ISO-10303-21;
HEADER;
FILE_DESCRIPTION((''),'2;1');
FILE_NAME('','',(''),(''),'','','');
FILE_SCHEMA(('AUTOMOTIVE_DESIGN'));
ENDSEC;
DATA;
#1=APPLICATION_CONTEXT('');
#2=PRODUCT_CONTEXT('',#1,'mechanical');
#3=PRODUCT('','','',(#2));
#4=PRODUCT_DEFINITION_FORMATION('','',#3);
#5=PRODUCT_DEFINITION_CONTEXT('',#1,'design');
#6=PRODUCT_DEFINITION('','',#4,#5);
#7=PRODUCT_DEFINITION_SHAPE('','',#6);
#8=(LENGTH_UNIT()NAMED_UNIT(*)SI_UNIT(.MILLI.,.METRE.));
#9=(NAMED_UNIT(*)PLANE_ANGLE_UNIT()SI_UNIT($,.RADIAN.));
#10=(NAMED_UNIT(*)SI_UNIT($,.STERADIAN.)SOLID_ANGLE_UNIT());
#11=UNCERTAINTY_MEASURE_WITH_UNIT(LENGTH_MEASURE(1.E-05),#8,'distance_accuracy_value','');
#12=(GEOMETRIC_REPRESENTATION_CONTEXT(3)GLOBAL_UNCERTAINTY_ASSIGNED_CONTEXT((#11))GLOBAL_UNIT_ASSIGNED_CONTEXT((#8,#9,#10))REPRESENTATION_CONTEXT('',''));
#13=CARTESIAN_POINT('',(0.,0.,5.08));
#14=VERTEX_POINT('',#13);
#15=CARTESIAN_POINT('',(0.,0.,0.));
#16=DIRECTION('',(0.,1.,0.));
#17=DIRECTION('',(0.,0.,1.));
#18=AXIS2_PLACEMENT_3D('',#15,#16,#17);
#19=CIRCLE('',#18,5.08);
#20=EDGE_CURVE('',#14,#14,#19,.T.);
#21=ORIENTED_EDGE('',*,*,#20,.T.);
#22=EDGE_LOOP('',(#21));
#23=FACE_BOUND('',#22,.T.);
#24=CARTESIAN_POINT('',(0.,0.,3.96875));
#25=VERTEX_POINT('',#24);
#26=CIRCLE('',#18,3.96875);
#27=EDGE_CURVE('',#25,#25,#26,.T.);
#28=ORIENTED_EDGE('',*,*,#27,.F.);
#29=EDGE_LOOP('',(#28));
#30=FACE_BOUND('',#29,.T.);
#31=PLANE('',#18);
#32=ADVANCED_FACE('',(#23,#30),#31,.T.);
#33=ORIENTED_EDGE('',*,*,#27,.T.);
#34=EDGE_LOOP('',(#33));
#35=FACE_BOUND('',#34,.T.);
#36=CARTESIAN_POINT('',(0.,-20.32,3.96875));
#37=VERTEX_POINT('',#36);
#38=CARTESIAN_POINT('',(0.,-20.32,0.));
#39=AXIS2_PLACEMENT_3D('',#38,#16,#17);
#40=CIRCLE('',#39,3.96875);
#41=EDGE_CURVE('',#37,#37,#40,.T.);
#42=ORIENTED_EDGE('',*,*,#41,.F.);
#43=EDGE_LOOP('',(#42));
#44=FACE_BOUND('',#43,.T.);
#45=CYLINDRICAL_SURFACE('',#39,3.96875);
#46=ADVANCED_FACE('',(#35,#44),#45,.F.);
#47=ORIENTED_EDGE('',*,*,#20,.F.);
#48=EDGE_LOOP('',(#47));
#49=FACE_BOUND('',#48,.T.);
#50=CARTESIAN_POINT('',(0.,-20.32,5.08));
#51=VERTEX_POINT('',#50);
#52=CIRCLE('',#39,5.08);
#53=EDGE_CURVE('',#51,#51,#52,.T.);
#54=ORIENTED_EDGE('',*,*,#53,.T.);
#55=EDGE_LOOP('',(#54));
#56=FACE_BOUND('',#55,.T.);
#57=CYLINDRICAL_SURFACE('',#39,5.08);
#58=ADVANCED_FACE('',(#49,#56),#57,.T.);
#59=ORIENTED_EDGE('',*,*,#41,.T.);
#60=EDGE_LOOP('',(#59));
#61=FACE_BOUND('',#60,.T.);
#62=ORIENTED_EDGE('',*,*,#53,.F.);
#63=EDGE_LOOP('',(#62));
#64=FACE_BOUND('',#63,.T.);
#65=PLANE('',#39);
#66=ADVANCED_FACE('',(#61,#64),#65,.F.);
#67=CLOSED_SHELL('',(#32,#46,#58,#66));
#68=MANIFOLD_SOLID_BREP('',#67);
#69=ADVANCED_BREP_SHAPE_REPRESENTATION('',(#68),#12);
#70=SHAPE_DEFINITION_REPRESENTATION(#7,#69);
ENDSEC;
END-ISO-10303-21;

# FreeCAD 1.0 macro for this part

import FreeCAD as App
import Part
import Sketcher

V = App.Vector
Q = App.Units.Quantity

doc = App.newDocument("Part")
body = doc.addObject("PartDesign::Body", "Body")

sketch1 = body.newObject("Sketcher::SketchObject", "Sketch")
sketch1.AttachmentSupport = (doc.getObject("XZ_Plane"), [""])
sketch1.MapMode = "FlatFace"
sketch1.addGeometry(Part.Circle(V(0, 0, 0), V(0, 0, 1), 5.08), False)
sketch1.addGeometry(Part.Circle(V(0, 0, 0), V(0, 0, 1), 3.96875), False)
sketch1.addConstraint(Sketcher.Constraint("Coincident", 0, 3, -1, 1))
sketch1.addConstraint(Sketcher.Constraint("Coincident", 1, 3, -1, 1))
sketch1.addConstraint(Sketcher.Constraint("Diameter", 0, Q("0.4 in")))
sketch1.addConstraint(Sketcher.Constraint("Diameter", 1, Q("0.3125 in")))
pad1 = body.newObject("PartDesign::Pad", "Pad")
pad1.Profile = sketch1
pad1.Length = Q("0.8 in")

doc.recompute()
